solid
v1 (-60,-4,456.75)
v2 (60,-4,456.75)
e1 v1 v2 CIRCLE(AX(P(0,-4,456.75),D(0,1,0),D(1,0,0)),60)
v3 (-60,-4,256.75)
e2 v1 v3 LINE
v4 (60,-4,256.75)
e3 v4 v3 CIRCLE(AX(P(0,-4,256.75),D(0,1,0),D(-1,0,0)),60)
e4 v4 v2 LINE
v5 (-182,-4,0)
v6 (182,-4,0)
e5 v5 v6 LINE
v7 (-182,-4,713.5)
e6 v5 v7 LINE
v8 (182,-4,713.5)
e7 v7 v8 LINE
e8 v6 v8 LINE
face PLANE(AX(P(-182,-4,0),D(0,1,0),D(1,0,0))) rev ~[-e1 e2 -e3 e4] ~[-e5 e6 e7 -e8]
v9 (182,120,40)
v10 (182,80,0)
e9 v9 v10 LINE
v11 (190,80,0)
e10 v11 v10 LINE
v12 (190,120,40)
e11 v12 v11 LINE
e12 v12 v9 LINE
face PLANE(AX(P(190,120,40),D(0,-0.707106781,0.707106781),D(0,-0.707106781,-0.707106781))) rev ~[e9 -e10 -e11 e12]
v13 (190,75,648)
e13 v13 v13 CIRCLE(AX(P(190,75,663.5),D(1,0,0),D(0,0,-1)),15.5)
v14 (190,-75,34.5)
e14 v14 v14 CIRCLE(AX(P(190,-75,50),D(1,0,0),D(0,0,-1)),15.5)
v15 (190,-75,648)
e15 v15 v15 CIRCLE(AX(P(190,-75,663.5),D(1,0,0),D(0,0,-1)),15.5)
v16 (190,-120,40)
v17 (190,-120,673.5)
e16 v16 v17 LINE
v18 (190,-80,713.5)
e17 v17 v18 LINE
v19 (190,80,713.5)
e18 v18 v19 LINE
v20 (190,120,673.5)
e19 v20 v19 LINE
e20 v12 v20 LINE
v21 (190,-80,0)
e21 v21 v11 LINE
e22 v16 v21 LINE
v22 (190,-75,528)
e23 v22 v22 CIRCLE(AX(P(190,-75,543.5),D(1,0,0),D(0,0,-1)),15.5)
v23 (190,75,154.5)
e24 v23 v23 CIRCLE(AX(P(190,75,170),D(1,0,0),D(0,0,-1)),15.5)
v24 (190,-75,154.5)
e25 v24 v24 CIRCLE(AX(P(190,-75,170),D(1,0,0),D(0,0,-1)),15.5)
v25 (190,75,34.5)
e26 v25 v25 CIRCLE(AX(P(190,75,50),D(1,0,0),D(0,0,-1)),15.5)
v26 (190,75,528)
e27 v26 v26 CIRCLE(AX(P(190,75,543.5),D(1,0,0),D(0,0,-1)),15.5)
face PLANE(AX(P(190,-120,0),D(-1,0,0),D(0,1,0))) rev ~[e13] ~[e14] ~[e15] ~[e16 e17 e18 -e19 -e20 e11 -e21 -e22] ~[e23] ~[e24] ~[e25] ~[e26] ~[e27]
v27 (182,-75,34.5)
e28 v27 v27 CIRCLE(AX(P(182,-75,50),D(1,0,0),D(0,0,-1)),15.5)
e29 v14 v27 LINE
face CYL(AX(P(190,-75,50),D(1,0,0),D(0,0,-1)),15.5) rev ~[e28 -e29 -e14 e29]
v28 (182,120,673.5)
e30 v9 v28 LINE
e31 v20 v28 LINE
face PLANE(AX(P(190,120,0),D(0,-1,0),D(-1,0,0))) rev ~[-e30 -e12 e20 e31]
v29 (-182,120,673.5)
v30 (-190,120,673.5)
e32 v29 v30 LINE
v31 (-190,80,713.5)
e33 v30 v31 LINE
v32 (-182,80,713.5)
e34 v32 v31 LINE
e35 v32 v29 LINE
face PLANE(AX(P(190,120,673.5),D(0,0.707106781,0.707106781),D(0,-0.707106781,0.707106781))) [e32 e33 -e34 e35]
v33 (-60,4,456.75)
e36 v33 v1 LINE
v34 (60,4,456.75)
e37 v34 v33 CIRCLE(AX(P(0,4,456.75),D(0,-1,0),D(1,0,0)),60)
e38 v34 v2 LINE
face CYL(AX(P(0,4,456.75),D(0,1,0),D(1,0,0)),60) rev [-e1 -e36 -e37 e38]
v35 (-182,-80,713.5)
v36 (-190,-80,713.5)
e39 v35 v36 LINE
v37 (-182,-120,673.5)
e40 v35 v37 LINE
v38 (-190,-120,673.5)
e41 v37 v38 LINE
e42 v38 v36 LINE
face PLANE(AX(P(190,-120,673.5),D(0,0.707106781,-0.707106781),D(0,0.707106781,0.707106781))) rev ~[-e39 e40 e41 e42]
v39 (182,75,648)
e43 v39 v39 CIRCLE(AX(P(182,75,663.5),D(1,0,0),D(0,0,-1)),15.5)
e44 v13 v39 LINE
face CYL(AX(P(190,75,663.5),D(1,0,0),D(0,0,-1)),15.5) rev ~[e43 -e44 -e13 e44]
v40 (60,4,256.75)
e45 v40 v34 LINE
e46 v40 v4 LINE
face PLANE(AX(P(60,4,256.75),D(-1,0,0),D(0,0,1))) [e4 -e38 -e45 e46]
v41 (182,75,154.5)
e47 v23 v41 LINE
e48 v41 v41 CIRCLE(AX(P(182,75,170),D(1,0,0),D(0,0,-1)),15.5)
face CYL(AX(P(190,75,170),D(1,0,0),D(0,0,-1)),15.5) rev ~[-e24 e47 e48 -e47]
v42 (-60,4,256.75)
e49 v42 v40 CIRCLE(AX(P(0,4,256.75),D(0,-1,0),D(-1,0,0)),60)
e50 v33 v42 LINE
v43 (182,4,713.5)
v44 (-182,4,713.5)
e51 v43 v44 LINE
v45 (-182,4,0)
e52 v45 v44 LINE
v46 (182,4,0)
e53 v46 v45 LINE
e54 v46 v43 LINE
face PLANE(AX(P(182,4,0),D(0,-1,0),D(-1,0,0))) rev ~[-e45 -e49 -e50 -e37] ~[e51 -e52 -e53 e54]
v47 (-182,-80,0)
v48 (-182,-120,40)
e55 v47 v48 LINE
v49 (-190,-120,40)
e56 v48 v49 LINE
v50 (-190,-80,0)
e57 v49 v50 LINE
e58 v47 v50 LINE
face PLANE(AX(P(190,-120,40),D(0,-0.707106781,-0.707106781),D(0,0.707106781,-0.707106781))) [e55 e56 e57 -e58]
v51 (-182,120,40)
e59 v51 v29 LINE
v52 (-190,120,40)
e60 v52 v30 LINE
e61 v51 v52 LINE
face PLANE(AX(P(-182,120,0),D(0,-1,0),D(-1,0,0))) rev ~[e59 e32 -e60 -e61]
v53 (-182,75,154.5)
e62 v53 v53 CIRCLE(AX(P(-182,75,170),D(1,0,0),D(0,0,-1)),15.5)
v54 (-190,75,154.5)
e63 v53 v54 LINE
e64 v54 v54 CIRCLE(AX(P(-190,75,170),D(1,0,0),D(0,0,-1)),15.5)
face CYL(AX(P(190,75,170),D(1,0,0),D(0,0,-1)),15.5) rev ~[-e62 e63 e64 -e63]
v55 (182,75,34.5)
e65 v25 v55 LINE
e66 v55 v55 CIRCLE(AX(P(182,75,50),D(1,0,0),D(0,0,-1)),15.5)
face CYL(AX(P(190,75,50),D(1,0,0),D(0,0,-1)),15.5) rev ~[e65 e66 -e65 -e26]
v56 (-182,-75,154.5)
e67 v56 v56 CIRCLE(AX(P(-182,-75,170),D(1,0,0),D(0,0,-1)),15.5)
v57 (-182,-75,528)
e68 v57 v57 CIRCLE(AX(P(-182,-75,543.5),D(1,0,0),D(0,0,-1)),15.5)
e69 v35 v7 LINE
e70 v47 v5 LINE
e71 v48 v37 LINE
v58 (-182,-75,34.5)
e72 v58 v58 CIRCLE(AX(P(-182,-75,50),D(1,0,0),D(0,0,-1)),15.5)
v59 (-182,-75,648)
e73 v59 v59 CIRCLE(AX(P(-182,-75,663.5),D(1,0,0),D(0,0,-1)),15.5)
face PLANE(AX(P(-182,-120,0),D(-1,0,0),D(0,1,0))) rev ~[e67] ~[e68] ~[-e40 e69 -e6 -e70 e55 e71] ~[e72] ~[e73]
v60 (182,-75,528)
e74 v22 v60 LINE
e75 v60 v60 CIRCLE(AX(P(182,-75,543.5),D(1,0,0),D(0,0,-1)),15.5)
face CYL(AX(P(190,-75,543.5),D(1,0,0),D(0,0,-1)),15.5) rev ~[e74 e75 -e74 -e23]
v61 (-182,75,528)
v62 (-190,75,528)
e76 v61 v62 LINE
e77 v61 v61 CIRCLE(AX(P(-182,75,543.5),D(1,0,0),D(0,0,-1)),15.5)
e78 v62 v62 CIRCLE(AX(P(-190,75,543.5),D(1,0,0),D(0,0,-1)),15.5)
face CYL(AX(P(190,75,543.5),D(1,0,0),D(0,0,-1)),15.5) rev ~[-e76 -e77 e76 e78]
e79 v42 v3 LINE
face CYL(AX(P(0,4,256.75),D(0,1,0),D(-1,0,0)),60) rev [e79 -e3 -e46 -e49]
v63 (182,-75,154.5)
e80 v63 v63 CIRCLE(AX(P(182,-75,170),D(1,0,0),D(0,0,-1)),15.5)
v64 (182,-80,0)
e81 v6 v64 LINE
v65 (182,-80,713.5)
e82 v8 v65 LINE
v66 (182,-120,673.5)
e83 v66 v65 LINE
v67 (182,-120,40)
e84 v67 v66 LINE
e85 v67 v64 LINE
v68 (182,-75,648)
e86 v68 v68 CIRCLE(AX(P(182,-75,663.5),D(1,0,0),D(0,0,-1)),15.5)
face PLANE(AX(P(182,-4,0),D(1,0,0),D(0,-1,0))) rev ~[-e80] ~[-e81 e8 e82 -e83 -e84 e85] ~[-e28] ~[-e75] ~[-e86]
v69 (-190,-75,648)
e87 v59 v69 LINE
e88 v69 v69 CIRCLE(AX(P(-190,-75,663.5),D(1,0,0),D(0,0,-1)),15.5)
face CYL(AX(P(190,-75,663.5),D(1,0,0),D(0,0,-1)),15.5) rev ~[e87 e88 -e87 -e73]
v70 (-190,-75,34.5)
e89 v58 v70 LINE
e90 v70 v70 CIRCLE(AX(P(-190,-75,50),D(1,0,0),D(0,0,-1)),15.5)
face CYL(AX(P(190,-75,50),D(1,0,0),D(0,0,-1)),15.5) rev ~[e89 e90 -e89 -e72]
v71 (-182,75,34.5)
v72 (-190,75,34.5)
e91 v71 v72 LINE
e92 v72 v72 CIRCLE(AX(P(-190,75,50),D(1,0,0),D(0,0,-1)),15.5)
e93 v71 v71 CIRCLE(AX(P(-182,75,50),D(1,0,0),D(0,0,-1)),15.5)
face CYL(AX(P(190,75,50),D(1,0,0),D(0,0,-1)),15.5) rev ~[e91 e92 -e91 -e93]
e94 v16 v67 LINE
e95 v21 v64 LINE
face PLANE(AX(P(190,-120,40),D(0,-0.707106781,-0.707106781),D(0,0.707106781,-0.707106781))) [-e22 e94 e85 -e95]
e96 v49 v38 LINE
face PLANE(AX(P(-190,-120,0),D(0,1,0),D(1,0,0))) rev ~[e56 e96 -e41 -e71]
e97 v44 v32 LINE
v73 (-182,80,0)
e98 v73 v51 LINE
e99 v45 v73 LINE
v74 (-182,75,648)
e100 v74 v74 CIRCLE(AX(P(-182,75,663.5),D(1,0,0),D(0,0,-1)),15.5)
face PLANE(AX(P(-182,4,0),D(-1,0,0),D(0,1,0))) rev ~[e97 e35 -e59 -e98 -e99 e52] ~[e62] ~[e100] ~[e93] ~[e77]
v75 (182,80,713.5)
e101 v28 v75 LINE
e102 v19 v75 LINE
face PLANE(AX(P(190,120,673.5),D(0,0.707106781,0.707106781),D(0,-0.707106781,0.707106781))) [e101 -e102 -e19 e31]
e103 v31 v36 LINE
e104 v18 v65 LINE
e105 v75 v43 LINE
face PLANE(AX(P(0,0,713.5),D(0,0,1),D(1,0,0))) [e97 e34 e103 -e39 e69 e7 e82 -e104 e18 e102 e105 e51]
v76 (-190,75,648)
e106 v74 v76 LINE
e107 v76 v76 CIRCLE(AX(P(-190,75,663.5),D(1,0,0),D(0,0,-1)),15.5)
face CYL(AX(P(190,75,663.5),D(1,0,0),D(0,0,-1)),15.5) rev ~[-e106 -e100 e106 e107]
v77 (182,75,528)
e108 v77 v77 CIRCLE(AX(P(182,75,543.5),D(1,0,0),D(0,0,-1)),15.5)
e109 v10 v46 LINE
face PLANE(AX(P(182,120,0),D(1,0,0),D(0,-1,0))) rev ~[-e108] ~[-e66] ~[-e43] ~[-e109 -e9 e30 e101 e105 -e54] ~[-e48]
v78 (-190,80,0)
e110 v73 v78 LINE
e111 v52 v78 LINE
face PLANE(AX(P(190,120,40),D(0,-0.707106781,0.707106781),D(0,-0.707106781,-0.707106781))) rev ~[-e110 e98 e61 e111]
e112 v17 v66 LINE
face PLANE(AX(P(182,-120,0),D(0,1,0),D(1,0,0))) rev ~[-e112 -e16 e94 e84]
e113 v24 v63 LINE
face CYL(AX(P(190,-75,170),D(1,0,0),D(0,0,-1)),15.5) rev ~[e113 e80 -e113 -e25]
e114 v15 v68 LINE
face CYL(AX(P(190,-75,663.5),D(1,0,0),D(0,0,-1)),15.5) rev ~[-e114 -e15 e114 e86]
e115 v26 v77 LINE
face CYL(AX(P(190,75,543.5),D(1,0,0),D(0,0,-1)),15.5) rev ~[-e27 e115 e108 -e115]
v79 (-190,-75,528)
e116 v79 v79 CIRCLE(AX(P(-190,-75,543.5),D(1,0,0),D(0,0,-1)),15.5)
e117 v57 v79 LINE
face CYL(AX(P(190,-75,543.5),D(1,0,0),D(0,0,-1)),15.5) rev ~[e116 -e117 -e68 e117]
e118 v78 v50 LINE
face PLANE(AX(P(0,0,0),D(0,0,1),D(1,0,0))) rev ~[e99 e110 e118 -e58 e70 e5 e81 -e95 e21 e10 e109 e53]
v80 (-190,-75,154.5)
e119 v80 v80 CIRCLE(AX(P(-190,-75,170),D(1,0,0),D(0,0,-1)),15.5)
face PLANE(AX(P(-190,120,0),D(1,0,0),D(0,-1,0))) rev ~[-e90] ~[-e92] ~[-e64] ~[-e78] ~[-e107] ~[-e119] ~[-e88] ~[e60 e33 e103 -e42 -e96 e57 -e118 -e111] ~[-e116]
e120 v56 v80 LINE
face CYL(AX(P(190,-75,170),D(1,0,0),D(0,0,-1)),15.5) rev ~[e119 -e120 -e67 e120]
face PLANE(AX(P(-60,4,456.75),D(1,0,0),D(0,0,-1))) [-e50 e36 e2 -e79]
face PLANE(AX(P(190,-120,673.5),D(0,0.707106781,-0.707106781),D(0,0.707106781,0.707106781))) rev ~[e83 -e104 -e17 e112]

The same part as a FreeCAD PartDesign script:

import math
import FreeCAD as App
import Part
import Sketcher
from FreeCAD import Vector


def add_polygon(sketch, points):
    """Adds a closed chain of lines whose ends are joined by coincident constraints."""
    first, n = sketch.GeometryCount, len(points)
    for a, b in zip(points, points[1:] + points[:1]):
        sketch.addGeometry(Part.LineSegment(App.Vector(*a, 0), App.Vector(*b, 0)), False)
    for i in range(n):
        sketch.addConstraint(Sketcher.Constraint("Coincident", first + i, 2, first + (i + 1) % n, 1))

doc = App.newDocument("Part")
params = doc.addObject("Spreadsheet::Sheet", "Params")
for row, (alias, value) in enumerate([
    ("sketch1_width", "8 mm"),
    ("sketch1_width2", "364 mm"),
    ("sketch1_height", "240 mm"),
    ("sketch1_height2", "116 mm"),
    ("pad1_length", "713.5 mm"),
    ("sketch2_diameter", "31 mm"),
    ("sketch2_width", "40 mm"),
    ("sketch3_radius", "60 mm"),
    ("sketch3_height", "200 mm"),
], start=1):
    params.set(f"A{row}", alias)
    params.set(f"B{row}", "=" + value)
    params.setAlias(f"B{row}", alias)

body = doc.addObject("PartDesign::Body", "Body")

sketch1 = body.newObject("Sketcher::SketchObject", "Sketch")
sketch1.AttachmentSupport = (doc.getObject("XY_Plane"), [""])
sketch1.MapMode = "FlatFace"
add_polygon(sketch1, [(-182, 120), (-190, 120), (-190, -120), (-182, -120), (-182, -4), (182, -4), (182, -120), (190, -120), (190, 120), (182, 120), (182, 4), (-182, 4)])
sketch1.addConstraint([
    Sketcher.Constraint("Horizontal", 0),
    Sketcher.Constraint("Vertical", 1),
    Sketcher.Constraint("Horizontal", 2),
    Sketcher.Constraint("Vertical", 3),
    Sketcher.Constraint("Horizontal", 4),
    Sketcher.Constraint("Vertical", 5),
    Sketcher.Constraint("Horizontal", 6),
    Sketcher.Constraint("Vertical", 7),
    Sketcher.Constraint("Horizontal", 8),
    Sketcher.Constraint("Vertical", 9),
    Sketcher.Constraint("Horizontal", 10),
    Sketcher.Constraint("Vertical", 11),
    Sketcher.Constraint("Symmetric", 0, 2, 6, 2, -1, 1),
    Sketcher.Constraint("Symmetric", 2, 2, 8, 2, -1, 1),
    Sketcher.Constraint("Symmetric", 4, 2, 10, 2, -1, 1),
    Sketcher.Constraint("Symmetric", 2, 2, 5, 2, -2),
    Sketcher.Constraint("DistanceX", 0, 2, 0, 1, 8.0),
    Sketcher.Constraint("DistanceX", 4, 1, 4, 2, 364.0),
    Sketcher.Constraint("DistanceY", 1, 2, 1, 1, 240.0),
    Sketcher.Constraint("DistanceY", 3, 1, 3, 2, 116.0),
])
sketch1.setExpression("Constraints[28]", "Params.sketch1_width")
sketch1.setExpression("Constraints[29]", "Params.sketch1_width2")
sketch1.setExpression("Constraints[30]", "Params.sketch1_height")
sketch1.setExpression("Constraints[31]", "Params.sketch1_height2")
pad1 = body.newObject("PartDesign::Pad", "Pad")
pad1.Profile = sketch1
pad1.setExpression("Length", "Params.pad1_length")

sketch2 = body.newObject("Sketcher::SketchObject", "Sketch001")
sketch2.AttachmentSupport = (doc.getObject("YZ_Plane"), [""])
sketch2.MapMode = "FlatFace"
sketch2.AttachmentOffset = App.Placement(Vector(0, 0, 190), App.Rotation())
sketch2.addGeometry(Part.Circle(Vector(75, 663.5, 0), Vector(0, 0, 1), 15.5), False)
sketch2.addGeometry(Part.Circle(Vector(75, 543.5, 0), Vector(0, 0, 1), 15.5), False)
sketch2.addGeometry(Part.Circle(Vector(-75, 663.5, 0), Vector(0, 0, 1), 15.5), False)
sketch2.addGeometry(Part.Circle(Vector(-75, 543.5, 0), Vector(0, 0, 1), 15.5), False)
sketch2.addGeometry(Part.Circle(Vector(75, 170, 0), Vector(0, 0, 1), 15.5), False)
sketch2.addGeometry(Part.Circle(Vector(75, 50, 0), Vector(0, 0, 1), 15.5), False)
sketch2.addGeometry(Part.Circle(Vector(-75, 50, 0), Vector(0, 0, 1), 15.5), False)
sketch2.addGeometry(Part.Circle(Vector(-75, 170, 0), Vector(0, 0, 1), 15.5), False)
add_polygon(sketch2, [(80, 713.5), (120, 673.5), (120, 713.5)])
add_polygon(sketch2, [(120, 40), (80, 0), (120, 0)])
add_polygon(sketch2, [(-80, 0), (-120, 40), (-120, 0)])
add_polygon(sketch2, [(-120, 673.5), (-80, 713.5), (-120, 713.5)])
sketch2.addConstraint([
    Sketcher.Constraint("Vertical", 9),
    Sketcher.Constraint("Horizontal", 10),
    Sketcher.Constraint("Horizontal", 12),
    Sketcher.Constraint("Vertical", 13),
    Sketcher.Constraint("Vertical", 15),
    Sketcher.Constraint("Horizontal", 16),
    Sketcher.Constraint("Horizontal", 18),
    Sketcher.Constraint("Vertical", 19),
    Sketcher.Constraint("Equal", 0, 1),
    Sketcher.Constraint("Equal", 1, 2),
    Sketcher.Constraint("Equal", 2, 3),
    Sketcher.Constraint("Equal", 3, 4),
    Sketcher.Constraint("Equal", 4, 5),
    Sketcher.Constraint("Equal", 5, 6),
    Sketcher.Constraint("Equal", 6, 7),
    Sketcher.Constraint("Symmetric", 12, 2, 15, 2, -1, 1),
    Sketcher.Constraint("Symmetric", 0, 3, 2, 3, -2),
    Sketcher.Constraint("Symmetric", 1, 3, 3, 3, -2),
    Sketcher.Constraint("Symmetric", 5, 3, 6, 3, -2),
    Sketcher.Constraint("Symmetric", 4, 3, 7, 3, -2),
    Sketcher.Constraint("Symmetric", 11, 2, 16, 2, -2),
    Sketcher.Constraint("Symmetric", 10, 2, 17, 2, -2),
    Sketcher.Constraint("Symmetric", 8, 2, 19, 2, -2),
    Sketcher.Constraint("Perpendicular", 8, 11),
    Sketcher.Constraint("Perpendicular", 11, 14),
    Sketcher.Constraint("Perpendicular", 14, 17),
    Sketcher.Constraint("Vertical", 0, 3, 1, 3),
    Sketcher.Constraint("Vertical", 1, 3, 4, 3),
    Sketcher.Constraint("Vertical", 4, 3, 5, 3),
    Sketcher.Constraint("Vertical", 10, 2, 11, 2),
    Sketcher.Constraint("Vertical", 9, 2, 12, 2),
    Sketcher.Constraint("Diameter", 0, 31.0),
    Sketcher.Constraint("DistanceX", 10, 2, 10, 1, 40.0),
    Sketcher.Constraint("DistanceX", -1, 1, 0, 3, 75.0),
    Sketcher.Constraint("DistanceY", -1, 1, 4, 3, 170.0),
    Sketcher.Constraint("DistanceY", -1, 1, 5, 3, 50.0),
    Sketcher.Constraint("DistanceX", -1, 1, 8, 2, 120.0),
    Sketcher.Constraint("DistanceY", 1, 3, 0, 3, 120.0),
    Sketcher.Constraint("DistanceY", 0, 3, 8, 2, 10.0),
    Sketcher.Constraint("DistanceY", -1, 1, 0, 3, 663.5),
])
sketch2.setExpression("Constraints[43]", "Params.sketch2_diameter")
sketch2.setExpression("Constraints[44]", "Params.sketch2_width")
pocket1 = body.newObject("PartDesign::Pocket", "Pocket")
pocket1.Profile = sketch2
pocket1.Type = "ThroughAll"

sketch3 = body.newObject("Sketcher::SketchObject", "Sketch002")
sketch3.AttachmentSupport = (doc.getObject("XZ_Plane"), [""])
sketch3.MapMode = "FlatFace"
sketch3.AttachmentOffset = App.Placement(Vector(0, 0, -4), App.Rotation())
sketch3.addGeometry([
    Part.LineSegment(Vector(60, 456.75, 0), Vector(60, 256.75, 0)),
    Part.ArcOfCircle(Part.Circle(Vector(0, 256.75, 0), Vector(0, 0, 1), 60), math.radians(180), math.radians(360)),
    Part.LineSegment(Vector(-60, 256.75, 0), Vector(-60, 456.75, 0)),
    Part.ArcOfCircle(Part.Circle(Vector(0, 456.75, 0), Vector(0, 0, 1), 60), math.radians(0), math.radians(180)),
], False)
sketch3.addConstraint([
    Sketcher.Constraint("Tangent", 0, 2, 1, 2),
    Sketcher.Constraint("Tangent", 1, 1, 2, 1),
    Sketcher.Constraint("Tangent", 2, 2, 3, 2),
    Sketcher.Constraint("Tangent", 3, 1, 0, 1),
    Sketcher.Constraint("Vertical", 0),
    Sketcher.Constraint("Vertical", 2),
    Sketcher.Constraint("PointOnObject", 1, 3, -2),
    Sketcher.Constraint("Radius", 1, 60.0),
    Sketcher.Constraint("DistanceY", 0, 2, 0, 1, 200.0),
    Sketcher.Constraint("DistanceY", -1, 1, 1, 3, 256.75),
])
sketch3.setExpression("Constraints[7]", "Params.sketch3_radius")
sketch3.setExpression("Constraints[8]", "Params.sketch3_height")
pocket2 = body.newObject("PartDesign::Pocket", "Pocket001")
pocket2.Profile = sketch3
pocket2.Type = "ThroughAll"
pocket2.Reversed = True

doc.recompute()
